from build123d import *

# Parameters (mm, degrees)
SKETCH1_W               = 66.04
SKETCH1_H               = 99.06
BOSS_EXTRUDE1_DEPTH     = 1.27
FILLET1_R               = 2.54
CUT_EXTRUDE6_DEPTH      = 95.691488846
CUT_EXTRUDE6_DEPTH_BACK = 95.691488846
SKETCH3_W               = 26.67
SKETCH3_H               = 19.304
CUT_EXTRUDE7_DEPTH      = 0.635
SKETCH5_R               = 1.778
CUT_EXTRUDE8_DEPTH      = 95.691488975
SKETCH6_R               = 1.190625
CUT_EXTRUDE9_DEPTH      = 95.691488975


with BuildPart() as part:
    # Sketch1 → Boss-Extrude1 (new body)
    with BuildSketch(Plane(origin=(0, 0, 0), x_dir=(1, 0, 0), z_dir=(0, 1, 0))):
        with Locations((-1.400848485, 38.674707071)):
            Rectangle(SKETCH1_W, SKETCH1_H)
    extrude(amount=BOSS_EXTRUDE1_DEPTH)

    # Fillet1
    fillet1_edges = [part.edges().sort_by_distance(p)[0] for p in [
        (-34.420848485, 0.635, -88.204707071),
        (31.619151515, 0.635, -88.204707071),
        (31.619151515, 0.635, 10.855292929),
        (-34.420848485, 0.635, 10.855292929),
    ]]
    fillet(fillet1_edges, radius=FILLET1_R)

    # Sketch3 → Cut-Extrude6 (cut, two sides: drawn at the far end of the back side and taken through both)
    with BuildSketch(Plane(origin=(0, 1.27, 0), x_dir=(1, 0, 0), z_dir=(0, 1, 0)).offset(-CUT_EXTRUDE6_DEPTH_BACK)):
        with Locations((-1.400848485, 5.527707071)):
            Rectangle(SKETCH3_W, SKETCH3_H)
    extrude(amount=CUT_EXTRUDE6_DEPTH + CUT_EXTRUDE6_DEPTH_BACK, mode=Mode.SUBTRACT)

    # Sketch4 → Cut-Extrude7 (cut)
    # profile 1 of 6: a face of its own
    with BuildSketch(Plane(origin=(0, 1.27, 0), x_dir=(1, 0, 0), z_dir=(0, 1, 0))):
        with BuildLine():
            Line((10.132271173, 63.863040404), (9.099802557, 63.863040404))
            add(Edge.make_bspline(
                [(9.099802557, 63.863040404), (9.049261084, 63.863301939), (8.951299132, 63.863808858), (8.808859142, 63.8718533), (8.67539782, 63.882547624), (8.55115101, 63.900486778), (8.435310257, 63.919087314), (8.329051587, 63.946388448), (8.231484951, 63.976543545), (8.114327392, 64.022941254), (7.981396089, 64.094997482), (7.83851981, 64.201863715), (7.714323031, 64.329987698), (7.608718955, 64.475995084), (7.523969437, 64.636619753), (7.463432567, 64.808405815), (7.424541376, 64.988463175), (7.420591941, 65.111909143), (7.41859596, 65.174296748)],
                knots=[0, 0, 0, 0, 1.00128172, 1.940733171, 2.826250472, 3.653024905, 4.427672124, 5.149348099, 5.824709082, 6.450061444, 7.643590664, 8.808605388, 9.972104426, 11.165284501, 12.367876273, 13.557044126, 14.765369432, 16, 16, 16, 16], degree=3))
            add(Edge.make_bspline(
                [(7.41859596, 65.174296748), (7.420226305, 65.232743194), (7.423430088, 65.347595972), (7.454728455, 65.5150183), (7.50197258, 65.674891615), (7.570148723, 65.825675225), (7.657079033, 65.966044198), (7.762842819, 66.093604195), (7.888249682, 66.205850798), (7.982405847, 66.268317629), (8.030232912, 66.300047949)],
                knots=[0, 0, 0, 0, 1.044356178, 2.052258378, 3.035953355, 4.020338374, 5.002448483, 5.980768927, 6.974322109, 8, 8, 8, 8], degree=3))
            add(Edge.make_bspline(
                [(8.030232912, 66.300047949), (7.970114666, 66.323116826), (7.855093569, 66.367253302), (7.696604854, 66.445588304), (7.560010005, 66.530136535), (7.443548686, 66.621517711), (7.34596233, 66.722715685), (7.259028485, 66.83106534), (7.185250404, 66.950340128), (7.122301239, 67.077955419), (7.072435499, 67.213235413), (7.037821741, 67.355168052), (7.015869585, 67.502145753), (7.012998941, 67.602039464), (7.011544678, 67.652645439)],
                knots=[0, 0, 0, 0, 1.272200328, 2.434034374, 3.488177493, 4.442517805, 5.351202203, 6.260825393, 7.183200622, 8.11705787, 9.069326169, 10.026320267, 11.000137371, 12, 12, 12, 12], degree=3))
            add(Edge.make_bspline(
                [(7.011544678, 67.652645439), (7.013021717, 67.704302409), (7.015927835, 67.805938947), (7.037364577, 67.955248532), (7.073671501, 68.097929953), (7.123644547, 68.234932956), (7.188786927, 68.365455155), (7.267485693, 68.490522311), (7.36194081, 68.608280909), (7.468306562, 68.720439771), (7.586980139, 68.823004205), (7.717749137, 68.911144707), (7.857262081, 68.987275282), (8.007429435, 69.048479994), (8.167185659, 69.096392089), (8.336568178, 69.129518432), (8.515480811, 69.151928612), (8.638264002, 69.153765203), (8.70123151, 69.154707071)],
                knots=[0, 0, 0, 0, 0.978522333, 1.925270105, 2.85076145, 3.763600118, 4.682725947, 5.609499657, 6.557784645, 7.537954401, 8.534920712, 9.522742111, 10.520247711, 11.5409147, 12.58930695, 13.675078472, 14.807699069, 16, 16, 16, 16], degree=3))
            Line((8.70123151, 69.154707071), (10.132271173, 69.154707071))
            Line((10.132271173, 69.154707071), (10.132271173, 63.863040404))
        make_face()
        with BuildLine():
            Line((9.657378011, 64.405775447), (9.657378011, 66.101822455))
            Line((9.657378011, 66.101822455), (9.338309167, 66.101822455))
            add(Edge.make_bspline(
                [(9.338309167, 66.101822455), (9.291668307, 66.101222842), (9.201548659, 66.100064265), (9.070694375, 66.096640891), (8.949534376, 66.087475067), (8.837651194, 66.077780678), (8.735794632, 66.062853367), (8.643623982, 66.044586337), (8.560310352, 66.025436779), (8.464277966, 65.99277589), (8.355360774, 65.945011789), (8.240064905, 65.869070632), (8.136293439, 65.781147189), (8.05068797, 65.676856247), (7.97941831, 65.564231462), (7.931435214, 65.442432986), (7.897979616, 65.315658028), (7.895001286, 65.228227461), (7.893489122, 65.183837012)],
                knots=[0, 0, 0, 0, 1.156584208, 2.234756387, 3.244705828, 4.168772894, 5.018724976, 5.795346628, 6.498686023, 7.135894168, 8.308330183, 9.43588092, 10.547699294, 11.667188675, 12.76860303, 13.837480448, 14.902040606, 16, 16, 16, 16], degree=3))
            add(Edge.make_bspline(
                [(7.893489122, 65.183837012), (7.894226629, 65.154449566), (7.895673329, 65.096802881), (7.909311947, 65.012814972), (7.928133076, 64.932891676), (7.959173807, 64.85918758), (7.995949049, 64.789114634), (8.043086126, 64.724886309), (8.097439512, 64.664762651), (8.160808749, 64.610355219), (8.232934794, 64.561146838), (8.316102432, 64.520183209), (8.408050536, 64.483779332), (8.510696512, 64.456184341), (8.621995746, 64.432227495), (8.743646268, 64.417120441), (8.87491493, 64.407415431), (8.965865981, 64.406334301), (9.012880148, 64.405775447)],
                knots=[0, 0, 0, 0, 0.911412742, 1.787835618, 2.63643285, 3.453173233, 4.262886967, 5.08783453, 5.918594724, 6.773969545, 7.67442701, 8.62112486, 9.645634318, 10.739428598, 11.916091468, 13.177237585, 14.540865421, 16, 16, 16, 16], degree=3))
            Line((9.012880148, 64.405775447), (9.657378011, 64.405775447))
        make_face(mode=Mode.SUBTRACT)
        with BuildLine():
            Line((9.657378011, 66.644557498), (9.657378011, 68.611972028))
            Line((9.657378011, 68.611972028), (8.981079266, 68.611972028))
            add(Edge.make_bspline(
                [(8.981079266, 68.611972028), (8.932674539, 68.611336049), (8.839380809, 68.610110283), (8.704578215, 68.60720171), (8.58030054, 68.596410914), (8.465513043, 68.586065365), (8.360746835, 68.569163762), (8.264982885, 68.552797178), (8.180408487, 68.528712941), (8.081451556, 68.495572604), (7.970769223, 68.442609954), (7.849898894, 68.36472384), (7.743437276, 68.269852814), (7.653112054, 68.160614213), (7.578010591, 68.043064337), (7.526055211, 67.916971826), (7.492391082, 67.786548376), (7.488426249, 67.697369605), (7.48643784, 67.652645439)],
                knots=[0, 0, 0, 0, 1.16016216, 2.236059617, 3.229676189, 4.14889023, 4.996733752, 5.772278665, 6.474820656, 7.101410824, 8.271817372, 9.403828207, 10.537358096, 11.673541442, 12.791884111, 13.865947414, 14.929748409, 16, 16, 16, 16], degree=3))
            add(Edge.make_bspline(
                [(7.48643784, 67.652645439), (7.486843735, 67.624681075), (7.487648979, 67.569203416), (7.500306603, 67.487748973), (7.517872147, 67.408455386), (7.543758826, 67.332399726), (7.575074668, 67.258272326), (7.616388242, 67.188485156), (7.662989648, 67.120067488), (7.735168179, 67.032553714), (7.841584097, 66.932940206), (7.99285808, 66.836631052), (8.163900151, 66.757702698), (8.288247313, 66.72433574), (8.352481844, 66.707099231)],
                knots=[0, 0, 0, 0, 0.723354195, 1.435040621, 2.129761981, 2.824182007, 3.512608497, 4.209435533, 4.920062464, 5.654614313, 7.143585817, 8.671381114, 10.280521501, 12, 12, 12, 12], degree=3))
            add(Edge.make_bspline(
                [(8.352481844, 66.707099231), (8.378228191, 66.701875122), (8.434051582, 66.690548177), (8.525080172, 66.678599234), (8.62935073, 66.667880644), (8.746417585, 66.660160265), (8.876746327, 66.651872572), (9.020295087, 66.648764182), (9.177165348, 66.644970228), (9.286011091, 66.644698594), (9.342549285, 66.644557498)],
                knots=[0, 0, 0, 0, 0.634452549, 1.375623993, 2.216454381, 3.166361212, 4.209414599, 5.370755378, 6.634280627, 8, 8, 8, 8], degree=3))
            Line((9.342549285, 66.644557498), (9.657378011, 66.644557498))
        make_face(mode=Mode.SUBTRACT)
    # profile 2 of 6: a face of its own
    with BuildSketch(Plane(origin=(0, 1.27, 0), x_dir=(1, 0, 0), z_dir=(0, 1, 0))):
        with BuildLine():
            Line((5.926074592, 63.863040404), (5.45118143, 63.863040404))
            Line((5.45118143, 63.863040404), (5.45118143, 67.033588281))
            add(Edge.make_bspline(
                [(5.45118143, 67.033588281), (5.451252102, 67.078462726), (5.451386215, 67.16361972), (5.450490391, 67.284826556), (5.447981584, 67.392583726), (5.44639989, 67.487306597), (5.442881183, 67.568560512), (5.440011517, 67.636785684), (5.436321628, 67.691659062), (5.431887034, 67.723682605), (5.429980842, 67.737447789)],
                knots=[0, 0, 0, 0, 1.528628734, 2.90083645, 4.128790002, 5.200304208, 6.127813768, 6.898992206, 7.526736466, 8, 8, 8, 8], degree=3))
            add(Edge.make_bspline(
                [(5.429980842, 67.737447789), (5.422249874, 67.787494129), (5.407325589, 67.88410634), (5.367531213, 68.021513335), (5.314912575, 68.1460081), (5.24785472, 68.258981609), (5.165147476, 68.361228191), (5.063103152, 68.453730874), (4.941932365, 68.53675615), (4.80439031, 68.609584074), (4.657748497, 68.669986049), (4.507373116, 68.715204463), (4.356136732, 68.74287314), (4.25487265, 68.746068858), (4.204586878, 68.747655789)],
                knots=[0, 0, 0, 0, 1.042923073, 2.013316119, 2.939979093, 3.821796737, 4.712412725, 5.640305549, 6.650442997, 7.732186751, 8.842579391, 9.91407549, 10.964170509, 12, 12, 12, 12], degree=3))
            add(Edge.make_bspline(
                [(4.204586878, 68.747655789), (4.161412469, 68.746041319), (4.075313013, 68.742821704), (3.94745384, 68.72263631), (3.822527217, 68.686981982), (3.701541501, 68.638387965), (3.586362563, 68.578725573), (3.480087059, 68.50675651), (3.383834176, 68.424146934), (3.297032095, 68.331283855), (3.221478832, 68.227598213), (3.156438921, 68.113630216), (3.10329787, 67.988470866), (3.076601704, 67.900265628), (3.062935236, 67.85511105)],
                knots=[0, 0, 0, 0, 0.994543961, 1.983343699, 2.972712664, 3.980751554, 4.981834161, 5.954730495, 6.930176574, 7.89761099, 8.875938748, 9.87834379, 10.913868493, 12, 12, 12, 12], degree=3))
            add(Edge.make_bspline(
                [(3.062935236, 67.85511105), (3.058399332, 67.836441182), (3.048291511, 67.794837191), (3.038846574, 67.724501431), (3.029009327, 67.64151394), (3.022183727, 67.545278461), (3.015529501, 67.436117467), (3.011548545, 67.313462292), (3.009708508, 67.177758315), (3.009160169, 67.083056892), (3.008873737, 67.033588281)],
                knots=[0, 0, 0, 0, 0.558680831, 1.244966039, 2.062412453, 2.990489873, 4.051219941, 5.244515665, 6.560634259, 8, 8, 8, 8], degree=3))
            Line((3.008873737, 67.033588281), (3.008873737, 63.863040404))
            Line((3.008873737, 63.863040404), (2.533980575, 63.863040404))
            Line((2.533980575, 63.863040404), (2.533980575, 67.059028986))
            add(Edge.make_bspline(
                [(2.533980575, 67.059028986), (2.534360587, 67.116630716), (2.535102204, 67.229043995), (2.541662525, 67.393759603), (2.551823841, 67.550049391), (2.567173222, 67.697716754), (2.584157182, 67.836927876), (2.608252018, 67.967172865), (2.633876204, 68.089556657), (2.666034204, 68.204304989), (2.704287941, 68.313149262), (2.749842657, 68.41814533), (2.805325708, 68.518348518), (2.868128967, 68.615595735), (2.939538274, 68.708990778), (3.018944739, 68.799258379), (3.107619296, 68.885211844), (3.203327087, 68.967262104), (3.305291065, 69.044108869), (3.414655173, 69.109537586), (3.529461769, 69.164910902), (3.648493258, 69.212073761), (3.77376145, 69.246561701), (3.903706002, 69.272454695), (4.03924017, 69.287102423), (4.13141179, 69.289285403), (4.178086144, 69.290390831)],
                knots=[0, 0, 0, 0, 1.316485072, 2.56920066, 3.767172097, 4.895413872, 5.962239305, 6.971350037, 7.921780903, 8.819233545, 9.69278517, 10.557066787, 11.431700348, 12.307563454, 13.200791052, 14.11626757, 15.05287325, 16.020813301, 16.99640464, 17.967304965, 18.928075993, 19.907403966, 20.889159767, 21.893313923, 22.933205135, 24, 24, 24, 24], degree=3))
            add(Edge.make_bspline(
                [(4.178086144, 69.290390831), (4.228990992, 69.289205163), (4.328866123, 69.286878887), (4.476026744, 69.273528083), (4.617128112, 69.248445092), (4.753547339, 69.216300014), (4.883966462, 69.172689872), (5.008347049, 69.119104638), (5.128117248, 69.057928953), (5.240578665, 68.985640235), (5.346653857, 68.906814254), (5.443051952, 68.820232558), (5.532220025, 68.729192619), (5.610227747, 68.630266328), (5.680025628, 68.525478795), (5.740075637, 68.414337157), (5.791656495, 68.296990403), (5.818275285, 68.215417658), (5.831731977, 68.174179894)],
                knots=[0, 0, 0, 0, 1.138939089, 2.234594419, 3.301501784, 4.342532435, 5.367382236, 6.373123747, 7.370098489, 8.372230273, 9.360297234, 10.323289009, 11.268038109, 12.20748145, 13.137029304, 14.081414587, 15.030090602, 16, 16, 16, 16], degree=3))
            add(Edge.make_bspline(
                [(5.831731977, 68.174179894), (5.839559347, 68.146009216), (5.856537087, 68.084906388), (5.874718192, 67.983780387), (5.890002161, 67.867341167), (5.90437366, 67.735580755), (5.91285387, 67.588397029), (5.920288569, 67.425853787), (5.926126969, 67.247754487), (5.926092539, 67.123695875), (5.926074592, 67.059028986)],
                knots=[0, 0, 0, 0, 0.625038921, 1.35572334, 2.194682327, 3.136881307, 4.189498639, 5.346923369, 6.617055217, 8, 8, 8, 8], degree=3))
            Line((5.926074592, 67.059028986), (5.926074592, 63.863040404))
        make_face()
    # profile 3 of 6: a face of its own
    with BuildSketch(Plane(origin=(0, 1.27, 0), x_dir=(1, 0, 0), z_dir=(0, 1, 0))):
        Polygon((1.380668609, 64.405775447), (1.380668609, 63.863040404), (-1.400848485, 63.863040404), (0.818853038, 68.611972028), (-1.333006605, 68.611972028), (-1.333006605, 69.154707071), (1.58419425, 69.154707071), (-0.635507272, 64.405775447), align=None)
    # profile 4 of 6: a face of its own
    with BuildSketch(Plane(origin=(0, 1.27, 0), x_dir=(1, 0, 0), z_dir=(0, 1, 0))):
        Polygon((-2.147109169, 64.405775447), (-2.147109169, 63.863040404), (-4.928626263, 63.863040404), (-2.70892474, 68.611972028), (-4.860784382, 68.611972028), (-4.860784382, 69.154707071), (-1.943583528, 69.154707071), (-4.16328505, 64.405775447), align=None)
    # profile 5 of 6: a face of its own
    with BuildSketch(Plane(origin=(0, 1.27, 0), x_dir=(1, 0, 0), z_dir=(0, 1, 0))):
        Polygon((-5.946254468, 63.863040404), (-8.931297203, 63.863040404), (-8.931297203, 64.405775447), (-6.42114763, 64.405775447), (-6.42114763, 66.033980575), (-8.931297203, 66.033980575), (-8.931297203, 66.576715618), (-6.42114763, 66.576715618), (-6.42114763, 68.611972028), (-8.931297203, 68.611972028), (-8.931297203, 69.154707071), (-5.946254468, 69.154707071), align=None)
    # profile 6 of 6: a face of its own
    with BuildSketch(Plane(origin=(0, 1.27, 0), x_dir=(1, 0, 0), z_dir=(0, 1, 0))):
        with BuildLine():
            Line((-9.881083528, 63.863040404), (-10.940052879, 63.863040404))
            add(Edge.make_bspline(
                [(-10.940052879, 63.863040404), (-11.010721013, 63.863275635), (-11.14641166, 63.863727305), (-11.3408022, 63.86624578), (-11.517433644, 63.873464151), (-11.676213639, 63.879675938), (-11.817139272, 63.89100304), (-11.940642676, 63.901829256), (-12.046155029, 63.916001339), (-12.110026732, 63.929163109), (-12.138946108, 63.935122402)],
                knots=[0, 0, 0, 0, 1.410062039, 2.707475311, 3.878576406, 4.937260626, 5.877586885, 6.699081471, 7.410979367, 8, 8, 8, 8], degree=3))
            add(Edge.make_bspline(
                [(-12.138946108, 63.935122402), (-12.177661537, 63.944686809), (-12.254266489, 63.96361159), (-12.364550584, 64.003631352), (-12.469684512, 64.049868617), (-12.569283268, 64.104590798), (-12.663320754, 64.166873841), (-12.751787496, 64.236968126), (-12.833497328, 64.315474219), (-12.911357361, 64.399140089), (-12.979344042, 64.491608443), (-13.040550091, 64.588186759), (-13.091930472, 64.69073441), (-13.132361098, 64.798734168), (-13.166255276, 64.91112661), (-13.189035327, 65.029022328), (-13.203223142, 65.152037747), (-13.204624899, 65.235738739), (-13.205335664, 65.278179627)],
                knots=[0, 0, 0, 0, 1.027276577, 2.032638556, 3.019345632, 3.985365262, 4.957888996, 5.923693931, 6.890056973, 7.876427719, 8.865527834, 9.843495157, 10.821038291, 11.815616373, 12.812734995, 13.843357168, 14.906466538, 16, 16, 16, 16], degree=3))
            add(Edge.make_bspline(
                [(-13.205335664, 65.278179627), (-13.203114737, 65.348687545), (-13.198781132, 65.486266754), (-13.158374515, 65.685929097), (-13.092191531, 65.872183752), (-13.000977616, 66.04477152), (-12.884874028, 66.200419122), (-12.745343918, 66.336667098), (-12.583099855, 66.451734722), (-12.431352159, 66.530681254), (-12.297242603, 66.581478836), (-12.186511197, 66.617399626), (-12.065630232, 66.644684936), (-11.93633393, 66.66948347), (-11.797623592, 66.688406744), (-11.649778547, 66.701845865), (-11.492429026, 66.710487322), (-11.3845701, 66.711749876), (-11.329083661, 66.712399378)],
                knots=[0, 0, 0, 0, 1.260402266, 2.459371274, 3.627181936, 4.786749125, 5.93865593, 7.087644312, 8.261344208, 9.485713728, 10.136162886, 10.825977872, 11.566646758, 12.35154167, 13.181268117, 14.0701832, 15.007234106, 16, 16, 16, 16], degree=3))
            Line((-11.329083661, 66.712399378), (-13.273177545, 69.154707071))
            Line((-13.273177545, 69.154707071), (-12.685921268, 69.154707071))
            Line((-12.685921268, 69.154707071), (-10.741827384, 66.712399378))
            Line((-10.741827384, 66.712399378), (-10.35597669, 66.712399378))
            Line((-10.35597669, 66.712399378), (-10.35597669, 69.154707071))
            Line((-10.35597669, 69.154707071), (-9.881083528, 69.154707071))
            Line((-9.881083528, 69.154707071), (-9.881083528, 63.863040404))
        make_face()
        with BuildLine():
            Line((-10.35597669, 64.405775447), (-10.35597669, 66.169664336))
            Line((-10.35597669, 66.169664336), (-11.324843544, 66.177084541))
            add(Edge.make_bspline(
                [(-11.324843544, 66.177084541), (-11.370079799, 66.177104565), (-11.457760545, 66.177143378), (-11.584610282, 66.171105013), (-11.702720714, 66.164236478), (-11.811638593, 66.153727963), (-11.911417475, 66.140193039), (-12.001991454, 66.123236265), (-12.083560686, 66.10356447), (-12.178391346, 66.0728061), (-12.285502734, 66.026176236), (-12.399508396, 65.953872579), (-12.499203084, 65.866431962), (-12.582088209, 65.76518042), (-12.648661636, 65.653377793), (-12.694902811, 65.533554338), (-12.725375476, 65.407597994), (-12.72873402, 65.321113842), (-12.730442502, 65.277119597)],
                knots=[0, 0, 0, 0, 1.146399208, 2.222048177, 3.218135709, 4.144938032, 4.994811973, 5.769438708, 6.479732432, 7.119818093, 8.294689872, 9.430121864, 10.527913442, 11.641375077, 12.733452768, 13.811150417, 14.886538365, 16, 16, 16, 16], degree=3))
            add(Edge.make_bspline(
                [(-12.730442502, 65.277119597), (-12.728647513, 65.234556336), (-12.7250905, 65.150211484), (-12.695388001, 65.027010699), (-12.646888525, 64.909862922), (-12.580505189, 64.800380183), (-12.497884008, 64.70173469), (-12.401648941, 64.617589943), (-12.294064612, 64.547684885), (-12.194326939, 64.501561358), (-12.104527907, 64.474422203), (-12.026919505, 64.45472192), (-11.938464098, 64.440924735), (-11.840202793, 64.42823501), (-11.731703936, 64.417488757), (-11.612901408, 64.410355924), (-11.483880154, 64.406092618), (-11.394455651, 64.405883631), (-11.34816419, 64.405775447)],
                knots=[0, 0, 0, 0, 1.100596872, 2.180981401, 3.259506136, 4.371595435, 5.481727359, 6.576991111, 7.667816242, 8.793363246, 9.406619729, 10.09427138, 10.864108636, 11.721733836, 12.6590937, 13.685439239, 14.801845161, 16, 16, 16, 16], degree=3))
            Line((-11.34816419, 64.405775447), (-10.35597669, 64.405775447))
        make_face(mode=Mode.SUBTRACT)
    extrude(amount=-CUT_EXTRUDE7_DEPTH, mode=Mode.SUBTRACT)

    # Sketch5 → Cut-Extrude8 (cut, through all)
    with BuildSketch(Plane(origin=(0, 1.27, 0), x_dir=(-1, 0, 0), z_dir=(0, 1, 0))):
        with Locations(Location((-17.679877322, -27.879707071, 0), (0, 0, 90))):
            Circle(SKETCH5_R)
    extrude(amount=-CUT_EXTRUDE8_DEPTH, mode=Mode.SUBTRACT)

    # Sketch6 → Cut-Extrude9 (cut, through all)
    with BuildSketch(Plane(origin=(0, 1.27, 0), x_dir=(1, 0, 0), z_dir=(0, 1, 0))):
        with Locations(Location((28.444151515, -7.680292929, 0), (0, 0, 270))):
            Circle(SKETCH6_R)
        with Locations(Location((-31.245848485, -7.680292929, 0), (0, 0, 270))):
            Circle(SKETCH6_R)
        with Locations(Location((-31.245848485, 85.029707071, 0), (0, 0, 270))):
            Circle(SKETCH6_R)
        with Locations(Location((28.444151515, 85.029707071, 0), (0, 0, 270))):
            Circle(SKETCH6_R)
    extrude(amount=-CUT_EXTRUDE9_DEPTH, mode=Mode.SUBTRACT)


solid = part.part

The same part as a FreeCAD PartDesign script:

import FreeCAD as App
import Part
import Sketcher

V = App.Vector
Q = App.Units.Quantity


def edges_at(feature, points):
    """Names of the edges that pass closest to the given points."""
    edges = feature.Shape.Edges
    near = lambda p: min(range(len(edges)), key=lambda i: edges[i].distToShape(Part.Vertex(*p))[0])
    return sorted({f"Edge{near(p) + 1}" for p in points})


def add_polygon(sketch, points):
    """Adds a closed chain of lines whose ends are joined by coincident constraints."""
    first, n = sketch.GeometryCount, len(points)
    for a, b in zip(points, points[1:] + points[:1]):
        sketch.addGeometry(Part.LineSegment(App.Vector(*a, 0), App.Vector(*b, 0)), False)
    for i in range(n):
        sketch.addConstraint(Sketcher.Constraint("Coincident", first + i, 2, first + (i + 1) % n, 1))

doc = App.newDocument("Part")
body = doc.addObject("PartDesign::Body", "Body")

# Sketch on XZ plane
sketch1 = body.newObject("Sketcher::SketchObject", "Sketch")
sketch1.AttachmentSupport = (doc.getObject("XZ_Plane"), [""])
sketch1.MapMode = "FlatFace"
add_polygon(sketch1, [(-34, -88), (-34, 11), (32, 11), (32, -88)])  # lines 0-3
sketch1.addConstraint([
    Sketcher.Constraint("Vertical", 0),
    Sketcher.Constraint("Horizontal", 1),
    Sketcher.Constraint("Vertical", 2),
    Sketcher.Constraint("Horizontal", 3),
    Sketcher.Constraint("DistanceX", 1, 1, 1, 2, Q("2.6 in")),
    Sketcher.Constraint("DistanceY", 0, 1, 0, 2, Q("3.9 in")),
    Sketcher.Constraint("DistanceX", 0, 2, -1, 1, Q("34.420848 mm")),
    Sketcher.Constraint("DistanceY", -1, 1, 0, 2, Q("10.855293 mm")),
])
pad1 = body.newObject("PartDesign::Pad", "Pad")
pad1.Profile = sketch1
pad1.Length = Q("0.05 in")
pad1.Reversed = True
doc.recompute()

fillet = body.newObject("PartDesign::Fillet", "Fillet")
fillet.Base = (pad1, edges_at(pad1, [
    (-34.421, 0.635, -88.205),
    (31.619, 0.635, -88.205),
    (31.619, 0.635, 10.855),
    (-34.421, 0.635, 10.855),
]))
fillet.Radius = Q("0.1 in")

# Sketch on XZ plane
sketch2 = body.newObject("Sketcher::SketchObject", "Sketch001")
sketch2.AttachmentSupport = (doc.getObject("XZ_Plane"), [""])
sketch2.MapMode = "FlatFace"
sketch2.AttachmentOffset = App.Placement(V(0, 0, -0.05 * 25.4), App.Rotation())
add_polygon(sketch2, [(-15, -15), (-15, 4), (12, 4), (12, -15)])  # lines 0-3
sketch2.addConstraint([
    Sketcher.Constraint("Vertical", 0),
    Sketcher.Constraint("Horizontal", 1),
    Sketcher.Constraint("Vertical", 2),
    Sketcher.Constraint("Horizontal", 3),
    Sketcher.Constraint("DistanceX", 1, 1, 1, 2, Q("1.05 in")),
    Sketcher.Constraint("DistanceY", 0, 1, 0, 2, Q("0.76 in")),
    Sketcher.Constraint("DistanceX", 0, 2, -1, 1, Q("14.735848 mm")),
    Sketcher.Constraint("DistanceY", -1, 1, 0, 2, Q("4.124293 mm")),
])
pocket1 = body.newObject("PartDesign::Pocket", "Pocket")
pocket1.Profile = sketch2
pocket1.Type = "ThroughAll"
pocket1.Midplane = True

# Sketch on XZ plane
sketch3 = body.newObject("Sketcher::SketchObject", "Sketch002")
sketch3.AttachmentSupport = (doc.getObject("XZ_Plane"), [""])
sketch3.MapMode = "FlatFace"
sketch3.AttachmentOffset = App.Placement(V(0, 0, -0.05 * 25.4), App.Rotation())
sketch3.addGeometry(Part.LineSegment(V(9.099803, -63.86304, 0), V(10.132271, -63.86304, 0)), False)  # 0
sketch3.addGeometry(Part.LineSegment(V(10.132271, -63.86304, 0), V(10.132271, -69.154707, 0)), False)  # 1
sketch3.addGeometry(Part.LineSegment(V(10.132271, -69.154707, 0), V(8.701232, -69.154707, 0)), False)  # 2
sketch3.addGeometry(Part.BSplineCurve([V(7.011545, -67.652645, 0), V(7.013022, -67.704302, 0), V(7.015928, -67.805939, 0), V(7.037365, -67.955249, 0), V(7.073672, -68.09793, 0), V(7.123645, -68.234933, 0), V(7.188787, -68.365455, 0), V(7.267486, -68.490522, 0), V(7.361941, -68.608281, 0), V(7.468307, -68.72044, 0), V(7.58698, -68.823004, 0), V(7.717749, -68.911145, 0), V(7.857262, -68.987275, 0), V(8.007429, -69.04848, 0), V(8.167186, -69.096392, 0), V(8.336568, -69.129518, 0), V(8.515481, -69.151929, 0), V(8.638264, -69.153765, 0), V(8.701232, -69.154707, 0)], [4, 1, 1, 1, 1, 1, 1, 1, 1, 1, 1, 1, 1, 1, 1, 1, 4], [0, 0.978522333, 1.925270105, 2.85076145, 3.763600118, 4.682725947, 5.609499657, 6.557784645, 7.537954401, 8.534920712, 9.522742111, 10.520247711, 11.5409147, 12.58930695, 13.675078472, 14.807699069, 16], False, 3, [1, 1, 1, 1, 1, 1, 1, 1, 1, 1, 1, 1, 1, 1, 1, 1, 1, 1, 1], False), False)  # 3
sketch3.addGeometry(Part.BSplineCurve([V(8.030233, -66.300048, 0), V(7.970115, -66.323117, 0), V(7.855094, -66.367253, 0), V(7.696605, -66.445588, 0), V(7.56001, -66.530137, 0), V(7.443549, -66.621518, 0), V(7.345962, -66.722716, 0), V(7.259028, -66.831065, 0), V(7.18525, -66.95034, 0), V(7.122301, -67.077955, 0), V(7.072435, -67.213235, 0), V(7.037822, -67.355168, 0), V(7.01587, -67.502146, 0), V(7.012999, -67.602039, 0), V(7.011545, -67.652645, 0)], [4, 1, 1, 1, 1, 1, 1, 1, 1, 1, 1, 1, 4], [0, 1.272200328, 2.434034374, 3.488177493, 4.442517805, 5.351202203, 6.260825393, 7.183200622, 8.11705787, 9.069326169, 10.026320267, 11.000137371, 12], False, 3, [1, 1, 1, 1, 1, 1, 1, 1, 1, 1, 1, 1, 1, 1, 1], False), False)  # 4
sketch3.addGeometry(Part.BSplineCurve([V(7.418596, -65.174297, 0), V(7.420226, -65.232743, 0), V(7.42343, -65.347596, 0), V(7.454728, -65.515018, 0), V(7.501973, -65.674892, 0), V(7.570149, -65.825675, 0), V(7.657079, -65.966044, 0), V(7.762843, -66.093604, 0), V(7.88825, -66.205851, 0), V(7.982406, -66.268318, 0), V(8.030233, -66.300048, 0)], [4, 1, 1, 1, 1, 1, 1, 1, 4], [0, 1.044356178, 2.052258378, 3.035953355, 4.020338374, 5.002448483, 5.980768927, 6.974322109, 8], False, 3, [1, 1, 1, 1, 1, 1, 1, 1, 1, 1, 1], False), False)  # 5
sketch3.addGeometry(Part.BSplineCurve([V(9.099803, -63.86304, 0), V(9.049261, -63.863302, 0), V(8.951299, -63.863809, 0), V(8.808859, -63.871853, 0), V(8.675398, -63.882548, 0), V(8.551151, -63.900487, 0), V(8.43531, -63.919087, 0), V(8.329052, -63.946388, 0), V(8.231485, -63.976544, 0), V(8.114327, -64.022941, 0), V(7.981396, -64.094997, 0), V(7.83852, -64.201864, 0), V(7.714323, -64.329988, 0), V(7.608719, -64.475995, 0), V(7.523969, -64.63662, 0), V(7.463433, -64.808406, 0), V(7.424541, -64.988463, 0), V(7.420592, -65.111909, 0), V(7.418596, -65.174297, 0)], [4, 1, 1, 1, 1, 1, 1, 1, 1, 1, 1, 1, 1, 1, 1, 1, 4], [0, 1.00128172, 1.940733171, 2.826250472, 3.653024905, 4.427672124, 5.149348099, 5.824709082, 6.450061444, 7.643590664, 8.808605388, 9.972104426, 11.165284501, 12.367876273, 13.557044126, 14.765369432, 16], False, 3, [1, 1, 1, 1, 1, 1, 1, 1, 1, 1, 1, 1, 1, 1, 1, 1, 1, 1, 1], False), False)  # 6
sketch3.addGeometry(Part.LineSegment(V(9.657378, -64.405775, 0), V(9.01288, -64.405775, 0)), False)  # 7
sketch3.addGeometry(Part.BSplineCurve([V(7.893489, -65.183837, 0), V(7.894227, -65.15445, 0), V(7.895673, -65.096803, 0), V(7.909312, -65.012815, 0), V(7.928133, -64.932892, 0), V(7.959174, -64.859188, 0), V(7.995949, -64.789115, 0), V(8.043086, -64.724886, 0), V(8.09744, -64.664763, 0), V(8.160809, -64.610355, 0), V(8.232935, -64.561147, 0), V(8.316102, -64.520183, 0), V(8.408051, -64.483779, 0), V(8.510697, -64.456184, 0), V(8.621996, -64.432227, 0), V(8.743646, -64.41712, 0), V(8.874915, -64.407415, 0), V(8.965866, -64.406334, 0), V(9.01288, -64.405775, 0)], [4, 1, 1, 1, 1, 1, 1, 1, 1, 1, 1, 1, 1, 1, 1, 1, 4], [0, 0.911412742, 1.787835618, 2.63643285, 3.453173233, 4.262886967, 5.08783453, 5.918594724, 6.773969545, 7.67442701, 8.62112486, 9.645634318, 10.739428598, 11.916091468, 13.177237585, 14.540865421, 16], False, 3, [1, 1, 1, 1, 1, 1, 1, 1, 1, 1, 1, 1, 1, 1, 1, 1, 1, 1, 1], False), False)  # 8
sketch3.addGeometry(Part.BSplineCurve([V(9.338309, -66.101822, 0), V(9.291668, -66.101223, 0), V(9.201549, -66.100064, 0), V(9.070694, -66.096641, 0), V(8.949534, -66.087475, 0), V(8.837651, -66.077781, 0), V(8.735795, -66.062853, 0), V(8.643624, -66.044586, 0), V(8.56031, -66.025437, 0), V(8.464278, -65.992776, 0), V(8.355361, -65.945012, 0), V(8.240065, -65.869071, 0), V(8.136293, -65.781147, 0), V(8.050688, -65.676856, 0), V(7.979418, -65.564231, 0), V(7.931435, -65.442433, 0), V(7.89798, -65.315658, 0), V(7.895001, -65.228227, 0), V(7.893489, -65.183837, 0)], [4, 1, 1, 1, 1, 1, 1, 1, 1, 1, 1, 1, 1, 1, 1, 1, 4], [0, 1.156584208, 2.234756387, 3.244705828, 4.168772894, 5.018724976, 5.795346628, 6.498686023, 7.135894168, 8.308330183, 9.43588092, 10.547699294, 11.667188675, 12.76860303, 13.837480448, 14.902040606, 16], False, 3, [1, 1, 1, 1, 1, 1, 1, 1, 1, 1, 1, 1, 1, 1, 1, 1, 1, 1, 1], False), False)  # 9
sketch3.addGeometry(Part.LineSegment(V(9.338309, -66.101822, 0), V(9.657378, -66.101822, 0)), False)  # 10
sketch3.addGeometry(Part.LineSegment(V(9.657378, -66.101822, 0), V(9.657378, -64.405775, 0)), False)  # 11
sketch3.addGeometry(Part.LineSegment(V(9.657378, -66.644557, 0), V(9.342549, -66.644557, 0)), False)  # 12
sketch3.addGeometry(Part.BSplineCurve([V(8.352482, -66.707099, 0), V(8.378228, -66.701875, 0), V(8.434052, -66.690548, 0), V(8.52508, -66.678599, 0), V(8.629351, -66.667881, 0), V(8.746418, -66.66016, 0), V(8.876746, -66.651873, 0), V(9.020295, -66.648764, 0), V(9.177165, -66.64497, 0), V(9.286011, -66.644699, 0), V(9.342549, -66.644557, 0)], [4, 1, 1, 1, 1, 1, 1, 1, 4], [0, 0.634452549, 1.375623993, 2.216454381, 3.166361212, 4.209414599, 5.370755378, 6.634280627, 8], False, 3, [1, 1, 1, 1, 1, 1, 1, 1, 1, 1, 1], False), False)  # 13
sketch3.addGeometry(Part.BSplineCurve([V(7.486438, -67.652645, 0), V(7.486844, -67.624681, 0), V(7.487649, -67.569203, 0), V(7.500307, -67.487749, 0), V(7.517872, -67.408455, 0), V(7.543759, -67.3324, 0), V(7.575075, -67.258272, 0), V(7.616388, -67.188485, 0), V(7.66299, -67.120067, 0), V(7.735168, -67.032554, 0), V(7.841584, -66.93294, 0), V(7.992858, -66.836631, 0), V(8.1639, -66.757703, 0), V(8.288247, -66.724336, 0), V(8.352482, -66.707099, 0)], [4, 1, 1, 1, 1, 1, 1, 1, 1, 1, 1, 1, 4], [0, 0.723354195, 1.435040621, 2.129761981, 2.824182007, 3.512608497, 4.209435533, 4.920062464, 5.654614313, 7.143585817, 8.671381114, 10.280521501, 12], False, 3, [1, 1, 1, 1, 1, 1, 1, 1, 1, 1, 1, 1, 1, 1, 1], False), False)  # 14
sketch3.addGeometry(Part.BSplineCurve([V(8.981079, -68.611972, 0), V(8.932675, -68.611336, 0), V(8.839381, -68.61011, 0), V(8.704578, -68.607202, 0), V(8.580301, -68.596411, 0), V(8.465513, -68.586065, 0), V(8.360747, -68.569164, 0), V(8.264983, -68.552797, 0), V(8.180408, -68.528713, 0), V(8.081452, -68.495573, 0), V(7.970769, -68.44261, 0), V(7.849899, -68.364724, 0), V(7.743437, -68.269853, 0), V(7.653112, -68.160614, 0), V(7.578011, -68.043064, 0), V(7.526055, -67.916972, 0), V(7.492391, -67.786548, 0), V(7.488426, -67.69737, 0), V(7.486438, -67.652645, 0)], [4, 1, 1, 1, 1, 1, 1, 1, 1, 1, 1, 1, 1, 1, 1, 1, 4], [0, 1.16016216, 2.236059617, 3.229676189, 4.14889023, 4.996733752, 5.772278665, 6.474820656, 7.101410824, 8.271817372, 9.403828207, 10.537358096, 11.673541442, 12.791884111, 13.865947414, 14.929748409, 16], False, 3, [1, 1, 1, 1, 1, 1, 1, 1, 1, 1, 1, 1, 1, 1, 1, 1, 1, 1, 1], False), False)  # 15
sketch3.addGeometry(Part.LineSegment(V(8.981079, -68.611972, 0), V(9.657378, -68.611972, 0)), False)  # 16
sketch3.addGeometry(Part.LineSegment(V(9.657378, -68.611972, 0), V(9.657378, -66.644557, 0)), False)  # 17
sketch3.addGeometry(Part.LineSegment(V(5.451181, -63.86304, 0), V(5.926075, -63.86304, 0)), False)  # 18
sketch3.addGeometry(Part.LineSegment(V(5.926075, -63.86304, 0), V(5.926075, -67.059029, 0)), False)  # 19
sketch3.addGeometry(Part.BSplineCurve([V(5.831732, -68.17418, 0), V(5.839559, -68.146009, 0), V(5.856537, -68.084906, 0), V(5.874718, -67.98378, 0), V(5.890002, -67.867341, 0), V(5.904374, -67.735581, 0), V(5.912854, -67.588397, 0), V(5.920289, -67.425854, 0), V(5.926127, -67.247754, 0), V(5.926093, -67.123696, 0), V(5.926075, -67.059029, 0)], [4, 1, 1, 1, 1, 1, 1, 1, 4], [0, 0.625038921, 1.35572334, 2.194682327, 3.136881307, 4.189498639, 5.346923369, 6.617055217, 8], False, 3, [1, 1, 1, 1, 1, 1, 1, 1, 1, 1, 1], False), False)  # 20
sketch3.addGeometry(Part.BSplineCurve([V(4.178086, -69.290391, 0), V(4.228991, -69.289205, 0), V(4.328866, -69.286879, 0), V(4.476027, -69.273528, 0), V(4.617128, -69.248445, 0), V(4.753547, -69.2163, 0), V(4.883966, -69.17269, 0), V(5.008347, -69.119105, 0), V(5.128117, -69.057929, 0), V(5.240579, -68.98564, 0), V(5.346654, -68.906814, 0), V(5.443052, -68.820233, 0), V(5.53222, -68.729193, 0), V(5.610228, -68.630266, 0), V(5.680026, -68.525479, 0), V(5.740076, -68.414337, 0), V(5.791656, -68.29699, 0), V(5.818275, -68.215418, 0), V(5.831732, -68.17418, 0)], [4, 1, 1, 1, 1, 1, 1, 1, 1, 1, 1, 1, 1, 1, 1, 1, 4], [0, 1.138939089, 2.234594419, 3.301501784, 4.342532435, 5.367382236, 6.373123747, 7.370098489, 8.372230273, 9.360297234, 10.323289009, 11.268038109, 12.20748145, 13.137029304, 14.081414587, 15.030090602, 16], False, 3, [1, 1, 1, 1, 1, 1, 1, 1, 1, 1, 1, 1, 1, 1, 1, 1, 1, 1, 1], False), False)  # 21
sketch3.addGeometry(Part.BSplineCurve([V(2.533981, -67.059029, 0), V(2.534361, -67.116631, 0), V(2.535102, -67.229044, 0), V(2.541663, -67.39376, 0), V(2.551824, -67.550049, 0), V(2.567173, -67.697717, 0), V(2.584157, -67.836928, 0), V(2.608252, -67.967173, 0), V(2.633876, -68.089557, 0), V(2.666034, -68.204305, 0), V(2.704288, -68.313149, 0), V(2.749843, -68.418145, 0), V(2.805326, -68.518349, 0), V(2.868129, -68.615596, 0), V(2.939538, -68.708991, 0), V(3.018945, -68.799258, 0), V(3.107619, -68.885212, 0), V(3.203327, -68.967262, 0), V(3.305291, -69.044109, 0), V(3.414655, -69.109538, 0), V(3.529462, -69.164911, 0), V(3.648493, -69.212074, 0), V(3.773761, -69.246562, 0), V(3.903706, -69.272455, 0), V(4.03924, -69.287102, 0), V(4.131412, -69.289285, 0), V(4.178086, -69.290391, 0)], [4, 1, 1, 1, 1, 1, 1, 1, 1, 1, 1, 1, 1, 1, 1, 1, 1, 1, 1, 1, 1, 1, 1, 1, 4], [0, 1.316485072, 2.56920066, 3.767172097, 4.895413872, 5.962239305, 6.971350037, 7.921780903, 8.819233545, 9.69278517, 10.557066787, 11.431700348, 12.307563454, 13.200791052, 14.11626757, 15.05287325, 16.020813301, 16.99640464, 17.967304965, 18.928075993, 19.907403966, 20.889159767, 21.893313923, 22.933205135, 24], False, 3, [1, 1, 1, 1, 1, 1, 1, 1, 1, 1, 1, 1, 1, 1, 1, 1, 1, 1, 1, 1, 1, 1, 1, 1, 1, 1, 1], False), False)  # 22
sketch3.addGeometry(Part.LineSegment(V(2.533981, -67.059029, 0), V(2.533981, -63.86304, 0)), False)  # 23
sketch3.addGeometry(Part.LineSegment(V(2.533981, -63.86304, 0), V(3.008874, -63.86304, 0)), False)  # 24
sketch3.addGeometry(Part.LineSegment(V(3.008874, -63.86304, 0), V(3.008874, -67.033588, 0)), False)  # 25
sketch3.addGeometry(Part.BSplineCurve([V(3.062935, -67.855111, 0), V(3.058399, -67.836441, 0), V(3.048292, -67.794837, 0), V(3.038847, -67.724501, 0), V(3.029009, -67.641514, 0), V(3.022184, -67.545278, 0), V(3.01553, -67.436117, 0), V(3.011549, -67.313462, 0), V(3.009709, -67.177758, 0), V(3.00916, -67.083057, 0), V(3.008874, -67.033588, 0)], [4, 1, 1, 1, 1, 1, 1, 1, 4], [0, 0.558680831, 1.244966039, 2.062412453, 2.990489873, 4.051219941, 5.244515665, 6.560634259, 8], False, 3, [1, 1, 1, 1, 1, 1, 1, 1, 1, 1, 1], False), False)  # 26
sketch3.addGeometry(Part.BSplineCurve([V(4.204587, -68.747656, 0), V(4.161412, -68.746041, 0), V(4.075313, -68.742822, 0), V(3.947454, -68.722636, 0), V(3.822527, -68.686982, 0), V(3.701542, -68.638388, 0), V(3.586363, -68.578726, 0), V(3.480087, -68.506757, 0), V(3.383834, -68.424147, 0), V(3.297032, -68.331284, 0), V(3.221479, -68.227598, 0), V(3.156439, -68.11363, 0), V(3.103298, -67.988471, 0), V(3.076602, -67.900266, 0), V(3.062935, -67.855111, 0)], [4, 1, 1, 1, 1, 1, 1, 1, 1, 1, 1, 1, 4], [0, 0.994543961, 1.983343699, 2.972712664, 3.980751554, 4.981834161, 5.954730495, 6.930176574, 7.89761099, 8.875938748, 9.87834379, 10.913868493, 12], False, 3, [1, 1, 1, 1, 1, 1, 1, 1, 1, 1, 1, 1, 1, 1, 1], False), False)  # 27
sketch3.addGeometry(Part.BSplineCurve([V(5.429981, -67.737448, 0), V(5.42225, -67.787494, 0), V(5.407326, -67.884106, 0), V(5.367531, -68.021513, 0), V(5.314913, -68.146008, 0), V(5.247855, -68.258982, 0), V(5.165147, -68.361228, 0), V(5.063103, -68.453731, 0), V(4.941932, -68.536756, 0), V(4.80439, -68.609584, 0), V(4.657748, -68.669986, 0), V(4.507373, -68.715204, 0), V(4.356137, -68.742873, 0), V(4.254873, -68.746069, 0), V(4.204587, -68.747656, 0)], [4, 1, 1, 1, 1, 1, 1, 1, 1, 1, 1, 1, 4], [0, 1.042923073, 2.013316119, 2.939979093, 3.821796737, 4.712412725, 5.640305549, 6.650442997, 7.732186751, 8.842579391, 9.91407549, 10.964170509, 12], False, 3, [1, 1, 1, 1, 1, 1, 1, 1, 1, 1, 1, 1, 1, 1, 1], False), False)  # 28
sketch3.addGeometry(Part.BSplineCurve([V(5.451181, -67.033588, 0), V(5.451252, -67.078463, 0), V(5.451386, -67.16362, 0), V(5.45049, -67.284827, 0), V(5.447982, -67.392584, 0), V(5.4464, -67.487307, 0), V(5.442881, -67.568561, 0), V(5.440012, -67.636786, 0), V(5.436322, -67.691659, 0), V(5.431887, -67.723683, 0), V(5.429981, -67.737448, 0)], [4, 1, 1, 1, 1, 1, 1, 1, 4], [0, 1.528628734, 2.90083645, 4.128790002, 5.200304208, 6.127813768, 6.898992206, 7.526736466, 8], False, 3, [1, 1, 1, 1, 1, 1, 1, 1, 1, 1, 1], False), False)  # 29
sketch3.addGeometry(Part.LineSegment(V(5.451181, -67.033588, 0), V(5.451181, -63.86304, 0)), False)  # 30
add_polygon(sketch3, [(1.380669, -63.86304), (1.380669, -64.405775), (-0.635507, -64.405775), (1.584194, -69.154707), (-1.333007, -69.154707), (-1.333007, -68.611972), (0.818853, -68.611972), (-1.400848, -63.86304)])  # lines 31-38
add_polygon(sketch3, [(-2.147109, -63.86304), (-2.147109, -64.405775), (-4.163285, -64.405775), (-1.943584, -69.154707), (-4.860784, -69.154707), (-4.860784, -68.611972), (-2.708925, -68.611972), (-4.928626, -63.86304)])  # lines 39-46
add_polygon(sketch3, [(-8.931297, -63.86304), (-5.946254, -63.86304), (-5.946254, -69.154707), (-8.931297, -69.154707), (-8.931297, -68.611972), (-6.421148, -68.611972), (-6.421148, -66.576716), (-8.931297, -66.576716), (-8.931297, -66.033981), (-6.421148, -66.033981), (-6.421148, -64.405775), (-8.931297, -64.405775)])  # lines 47-58
sketch3.addGeometry(Part.LineSegment(V(-10.940053, -63.86304, 0), V(-9.881084, -63.86304, 0)), False)  # 59
sketch3.addGeometry(Part.LineSegment(V(-9.881084, -63.86304, 0), V(-9.881084, -69.154707, 0)), False)  # 60
sketch3.addGeometry(Part.LineSegment(V(-9.881084, -69.154707, 0), V(-10.355977, -69.154707, 0)), False)  # 61
sketch3.addGeometry(Part.LineSegment(V(-10.355977, -69.154707, 0), V(-10.355977, -66.712399, 0)), False)  # 62
sketch3.addGeometry(Part.LineSegment(V(-10.355977, -66.712399, 0), V(-10.741827, -66.712399, 0)), False)  # 63
sketch3.addGeometry(Part.LineSegment(V(-10.741827, -66.712399, 0), V(-12.685921, -69.154707, 0)), False)  # 64
sketch3.addGeometry(Part.LineSegment(V(-12.685921, -69.154707, 0), V(-13.273178, -69.154707, 0)), False)  # 65
sketch3.addGeometry(Part.LineSegment(V(-13.273178, -69.154707, 0), V(-11.329084, -66.712399, 0)), False)  # 66
sketch3.addGeometry(Part.BSplineCurve([V(-13.205336, -65.27818, 0), V(-13.203115, -65.348688, 0), V(-13.198781, -65.486267, 0), V(-13.158375, -65.685929, 0), V(-13.092192, -65.872184, 0), V(-13.000978, -66.044772, 0), V(-12.884874, -66.200419, 0), V(-12.745344, -66.336667, 0), V(-12.5831, -66.451735, 0), V(-12.431352, -66.530681, 0), V(-12.297243, -66.581479, 0), V(-12.186511, -66.6174, 0), V(-12.06563, -66.644685, 0), V(-11.936334, -66.669483, 0), V(-11.797624, -66.688407, 0), V(-11.649779, -66.701846, 0), V(-11.492429, -66.710487, 0), V(-11.38457, -66.71175, 0), V(-11.329084, -66.712399, 0)], [4, 1, 1, 1, 1, 1, 1, 1, 1, 1, 1, 1, 1, 1, 1, 1, 4], [0, 1.260402266, 2.459371274, 3.627181936, 4.786749125, 5.93865593, 7.087644312, 8.261344208, 9.485713728, 10.136162886, 10.825977872, 11.566646758, 12.35154167, 13.181268117, 14.0701832, 15.007234106, 16], False, 3, [1, 1, 1, 1, 1, 1, 1, 1, 1, 1, 1, 1, 1, 1, 1, 1, 1, 1, 1], False), False)  # 67
sketch3.addGeometry(Part.BSplineCurve([V(-12.138946, -63.935122, 0), V(-12.177662, -63.944687, 0), V(-12.254266, -63.963612, 0), V(-12.364551, -64.003631, 0), V(-12.469685, -64.049869, 0), V(-12.569283, -64.104591, 0), V(-12.663321, -64.166874, 0), V(-12.751787, -64.236968, 0), V(-12.833497, -64.315474, 0), V(-12.911357, -64.39914, 0), V(-12.979344, -64.491608, 0), V(-13.04055, -64.588187, 0), V(-13.09193, -64.690734, 0), V(-13.132361, -64.798734, 0), V(-13.166255, -64.911127, 0), V(-13.189035, -65.029022, 0), V(-13.203223, -65.152038, 0), V(-13.204625, -65.235739, 0), V(-13.205336, -65.27818, 0)], [4, 1, 1, 1, 1, 1, 1, 1, 1, 1, 1, 1, 1, 1, 1, 1, 4], [0, 1.027276577, 2.032638556, 3.019345632, 3.985365262, 4.957888996, 5.923693931, 6.890056973, 7.876427719, 8.865527834, 9.843495157, 10.821038291, 11.815616373, 12.812734995, 13.843357168, 14.906466538, 16], False, 3, [1, 1, 1, 1, 1, 1, 1, 1, 1, 1, 1, 1, 1, 1, 1, 1, 1, 1, 1], False), False)  # 68
sketch3.addGeometry(Part.BSplineCurve([V(-10.940053, -63.86304, 0), V(-11.010721, -63.863276, 0), V(-11.146412, -63.863727, 0), V(-11.340802, -63.866246, 0), V(-11.517434, -63.873464, 0), V(-11.676214, -63.879676, 0), V(-11.817139, -63.891003, 0), V(-11.940643, -63.901829, 0), V(-12.046155, -63.916001, 0), V(-12.110027, -63.929163, 0), V(-12.138946, -63.935122, 0)], [4, 1, 1, 1, 1, 1, 1, 1, 4], [0, 1.410062039, 2.707475311, 3.878576406, 4.937260626, 5.877586885, 6.699081471, 7.410979367, 8], False, 3, [1, 1, 1, 1, 1, 1, 1, 1, 1, 1, 1], False), False)  # 69
sketch3.addGeometry(Part.LineSegment(V(-10.355977, -64.405775, 0), V(-11.348164, -64.405775, 0)), False)  # 70
sketch3.addGeometry(Part.BSplineCurve([V(-12.730443, -65.27712, 0), V(-12.728648, -65.234556, 0), V(-12.725091, -65.150211, 0), V(-12.695388, -65.027011, 0), V(-12.646889, -64.909863, 0), V(-12.580505, -64.80038, 0), V(-12.497884, -64.701735, 0), V(-12.401649, -64.61759, 0), V(-12.294065, -64.547685, 0), V(-12.194327, -64.501561, 0), V(-12.104528, -64.474422, 0), V(-12.02692, -64.454722, 0), V(-11.938464, -64.440925, 0), V(-11.840203, -64.428235, 0), V(-11.731704, -64.417489, 0), V(-11.612901, -64.410356, 0), V(-11.48388, -64.406093, 0), V(-11.394456, -64.405884, 0), V(-11.348164, -64.405775, 0)], [4, 1, 1, 1, 1, 1, 1, 1, 1, 1, 1, 1, 1, 1, 1, 1, 4], [0, 1.100596872, 2.180981401, 3.259506136, 4.371595435, 5.481727359, 6.576991111, 7.667816242, 8.793363246, 9.406619729, 10.09427138, 10.864108636, 11.721733836, 12.6590937, 13.685439239, 14.801845161, 16], False, 3, [1, 1, 1, 1, 1, 1, 1, 1, 1, 1, 1, 1, 1, 1, 1, 1, 1, 1, 1], False), False)  # 71
sketch3.addGeometry(Part.BSplineCurve([V(-11.324844, -66.177085, 0), V(-11.37008, -66.177105, 0), V(-11.457761, -66.177143, 0), V(-11.58461, -66.171105, 0), V(-11.702721, -66.164236, 0), V(-11.811639, -66.153728, 0), V(-11.911417, -66.140193, 0), V(-12.001991, -66.123236, 0), V(-12.083561, -66.103564, 0), V(-12.178391, -66.072806, 0), V(-12.285503, -66.026176, 0), V(-12.399508, -65.953873, 0), V(-12.499203, -65.866432, 0), V(-12.582088, -65.76518, 0), V(-12.648662, -65.653378, 0), V(-12.694903, -65.533554, 0), V(-12.725375, -65.407598, 0), V(-12.728734, -65.321114, 0), V(-12.730443, -65.27712, 0)], [4, 1, 1, 1, 1, 1, 1, 1, 1, 1, 1, 1, 1, 1, 1, 1, 4], [0, 1.146399208, 2.222048177, 3.218135709, 4.144938032, 4.994811973, 5.769438708, 6.479732432, 7.119818093, 8.294689872, 9.430121864, 10.527913442, 11.641375077, 12.733452768, 13.811150417, 14.886538365, 16], False, 3, [1, 1, 1, 1, 1, 1, 1, 1, 1, 1, 1, 1, 1, 1, 1, 1, 1, 1, 1], False), False)  # 72
sketch3.addGeometry(Part.LineSegment(V(-11.324844, -66.177085, 0), V(-10.355977, -66.169664, 0)), False)  # 73
sketch3.addGeometry(Part.LineSegment(V(-10.355977, -66.169664, 0), V(-10.355977, -64.405775, 0)), False)  # 74
sketch3.addConstraint([
    Sketcher.Constraint("Block", 3),
    Sketcher.Constraint("Block", 4),
    Sketcher.Constraint("Block", 5),
    Sketcher.Constraint("Block", 6),
    Sketcher.Constraint("Block", 8),
    Sketcher.Constraint("Block", 9),
    Sketcher.Constraint("Block", 13),
    Sketcher.Constraint("Block", 14),
    Sketcher.Constraint("Block", 15),
    Sketcher.Constraint("Block", 20),
    Sketcher.Constraint("Block", 21),
    Sketcher.Constraint("Block", 22),
    Sketcher.Constraint("Block", 26),
    Sketcher.Constraint("Block", 27),
    Sketcher.Constraint("Block", 28),
    Sketcher.Constraint("Block", 29),
    Sketcher.Constraint("Block", 67),
    Sketcher.Constraint("Block", 68),
    Sketcher.Constraint("Block", 69),
    Sketcher.Constraint("Block", 71),
    Sketcher.Constraint("Block", 72),
    Sketcher.Constraint("Coincident", 0, 2, 1, 1),
    Sketcher.Constraint("Coincident", 1, 2, 2, 1),
    Sketcher.Constraint("Coincident", 2, 2, 3, 2),
    Sketcher.Constraint("Coincident", 6, 1, 0, 1),
    Sketcher.Constraint("Coincident", 7, 2, 8, 2),
    Sketcher.Constraint("Coincident", 9, 1, 10, 1),
    Sketcher.Constraint("Coincident", 10, 2, 11, 1),
    Sketcher.Constraint("Coincident", 11, 2, 7, 1),
    Sketcher.Constraint("Coincident", 12, 2, 13, 2),
    Sketcher.Constraint("Coincident", 15, 1, 16, 1),
    Sketcher.Constraint("Coincident", 16, 2, 17, 1),
    Sketcher.Constraint("Coincident", 17, 2, 12, 1),
    Sketcher.Constraint("Coincident", 18, 2, 19, 1),
    Sketcher.Constraint("Coincident", 19, 2, 20, 2),
    Sketcher.Constraint("Coincident", 22, 1, 23, 1),
    Sketcher.Constraint("Coincident", 23, 2, 24, 1),
    Sketcher.Constraint("Coincident", 24, 2, 25, 1),
    Sketcher.Constraint("Coincident", 25, 2, 26, 2),
    Sketcher.Constraint("Coincident", 29, 1, 30, 1),
    Sketcher.Constraint("Coincident", 30, 2, 18, 1),
    Sketcher.Constraint("Coincident", 59, 2, 60, 1),
    Sketcher.Constraint("Coincident", 60, 2, 61, 1),
    Sketcher.Constraint("Coincident", 61, 2, 62, 1),
    Sketcher.Constraint("Coincident", 62, 2, 63, 1),
    Sketcher.Constraint("Coincident", 63, 2, 64, 1),
    Sketcher.Constraint("Coincident", 64, 2, 65, 1),
    Sketcher.Constraint("Coincident", 65, 2, 66, 1),
    Sketcher.Constraint("Coincident", 66, 2, 67, 2),
    Sketcher.Constraint("Coincident", 69, 1, 59, 1),
    Sketcher.Constraint("Coincident", 70, 2, 71, 2),
    Sketcher.Constraint("Coincident", 72, 1, 73, 1),
    Sketcher.Constraint("Coincident", 73, 2, 74, 1),
    Sketcher.Constraint("Coincident", 74, 2, 70, 1),
    Sketcher.Constraint("Horizontal", 0),
    Sketcher.Constraint("Vertical", 1),
    Sketcher.Constraint("Horizontal", 2),
    Sketcher.Constraint("Horizontal", 7),
    Sketcher.Constraint("Horizontal", 10),
    Sketcher.Constraint("Vertical", 11),
    Sketcher.Constraint("Horizontal", 12),
    Sketcher.Constraint("Horizontal", 16),
    Sketcher.Constraint("Vertical", 17),
    Sketcher.Constraint("Horizontal", 18),
    Sketcher.Constraint("Vertical", 19),
    Sketcher.Constraint("Vertical", 23),
    Sketcher.Constraint("Horizontal", 24),
    Sketcher.Constraint("Vertical", 25),
    Sketcher.Constraint("Vertical", 30),
    Sketcher.Constraint("Vertical", 31),
    Sketcher.Constraint("Horizontal", 32),
    Sketcher.Constraint("Horizontal", 34),
    Sketcher.Constraint("Vertical", 35),
    Sketcher.Constraint("Horizontal", 36),
    Sketcher.Constraint("Horizontal", 38),
    Sketcher.Constraint("Vertical", 39),
    Sketcher.Constraint("Horizontal", 40),
    Sketcher.Constraint("Horizontal", 42),
    Sketcher.Constraint("Vertical", 43),
    Sketcher.Constraint("Horizontal", 44),
    Sketcher.Constraint("Horizontal", 46),
    Sketcher.Constraint("Horizontal", 47),
    Sketcher.Constraint("Vertical", 48),
    Sketcher.Constraint("Horizontal", 49),
    Sketcher.Constraint("Vertical", 50),
    Sketcher.Constraint("Horizontal", 51),
    Sketcher.Constraint("Vertical", 52),
    Sketcher.Constraint("Horizontal", 53),
    Sketcher.Constraint("Vertical", 54),
    Sketcher.Constraint("Horizontal", 55),
    Sketcher.Constraint("Vertical", 56),
    Sketcher.Constraint("Horizontal", 57),
    Sketcher.Constraint("Vertical", 58),
    Sketcher.Constraint("Horizontal", 59),
    Sketcher.Constraint("Vertical", 60),
    Sketcher.Constraint("Horizontal", 61),
    Sketcher.Constraint("Vertical", 62),
    Sketcher.Constraint("Horizontal", 63),
    Sketcher.Constraint("Horizontal", 65),
    Sketcher.Constraint("Horizontal", 70),
    Sketcher.Constraint("Vertical", 74),
    Sketcher.Constraint("DistanceX", 16, 1, 16, 2, Q("0.676299 mm")),
    Sketcher.Constraint("DistanceX", 34, 2, 34, 1, Q("2.917201 mm")),
    Sketcher.Constraint("DistanceX", 42, 2, 42, 1, Q("2.917201 mm")),
    Sketcher.Constraint("DistanceX", 0, 1, 0, 2, Q("1.032469 mm")),
    Sketcher.Constraint("DistanceX", 10, 1, 10, 2, Q("0.319069 mm")),
    Sketcher.Constraint("DistanceX", 36, 1, 36, 2, Q("2.15186 mm")),
    Sketcher.Constraint("DistanceX", 44, 1, 44, 2, Q("2.15186 mm")),
    Sketcher.Constraint("DistanceX", 51, 1, 51, 2, Q("2.51015 mm")),
    Sketcher.Constraint("DistanceX", 53, 2, 53, 1, Q("2.51015 mm")),
    Sketcher.Constraint("DistanceX", 55, 1, 55, 2, Q("2.51015 mm")),
    Sketcher.Constraint("DistanceX", 57, 2, 57, 1, Q("2.51015 mm")),
    Sketcher.Constraint("DistanceX", 59, 1, 59, 2, Q("1.058969 mm")),
    Sketcher.Constraint("DistanceX", 63, 2, 63, 1, Q("0.385851 mm")),
    Sketcher.Constraint("DistanceY", 19, 2, 19, 1, Q("3.195989 mm")),
    Sketcher.Constraint("DistanceY", 23, 1, 23, 2, Q("3.195989 mm")),
    Sketcher.Constraint("DistanceY", 74, 1, 74, 2, Q("1.763889 mm")),
    Sketcher.Constraint("DistanceY", 62, 2, -1, 1, Q("66.712399 mm")),
    Sketcher.Constraint("DistanceX", 32, 2, 33, 2, Q("2.219702 mm")),
    Sketcher.Constraint("DistanceX", 39, 2, 32, 2, Q("1.511602 mm")),
    Sketcher.Constraint("DistanceX", 42, 2, 40, 2, Q("0.697499 mm")),
    Sketcher.Constraint("DistanceX", 65, 2, 61, 2, Q("2.917201 mm")),
    Sketcher.Constraint("DistanceX", 32, 2, 32, 1, Q("2.016176 mm")),
    Sketcher.Constraint("DistanceX", 38, 1, 38, 2, Q("2.781517 mm")),
    Sketcher.Constraint("DistanceX", 40, 2, 40, 1, Q("2.016176 mm")),
    Sketcher.Constraint("DistanceX", 46, 1, 46, 2, Q("2.781517 mm")),
    Sketcher.Constraint("DistanceX", 47, 1, 47, 2, Q("2.985043 mm")),
    Sketcher.Constraint("DistanceX", 61, 2, 61, 1, Q("0.474893 mm")),
    Sketcher.Constraint("DistanceX", 65, 2, 65, 1, Q("0.587256 mm")),
    Sketcher.Constraint("DistanceX", 70, 2, 70, 1, Q("0.992188 mm")),
    Sketcher.Constraint("DistanceY", 31, 2, 31, 1, Q("0.542735 mm")),
    Sketcher.Constraint("DistanceY", 35, 1, 35, 2, Q("0.542735 mm")),
    Sketcher.Constraint("DistanceY", 39, 2, 39, 1, Q("0.542735 mm")),
    Sketcher.Constraint("DistanceY", 43, 1, 43, 2, Q("0.542735 mm")),
    Sketcher.Constraint("DistanceY", 48, 2, 48, 1, Q("5.291667 mm")),
    Sketcher.Constraint("DistanceY", 50, 1, 50, 2, Q("0.542735 mm")),
    Sketcher.Constraint("DistanceY", 52, 1, 52, 2, Q("2.035256 mm")),
    Sketcher.Constraint("DistanceY", 54, 1, 54, 2, Q("0.542735 mm")),
    Sketcher.Constraint("DistanceY", 56, 1, 56, 2, Q("1.628205 mm")),
    Sketcher.Constraint("DistanceY", 60, 2, 60, 1, Q("5.291667 mm")),
    Sketcher.Constraint("DistanceX", -1, 1, 31, 2, Q("1.380669 mm")),
    Sketcher.Constraint("DistanceY", 37, 2, -1, 1, Q("63.86304 mm")),
    Sketcher.Constraint("DistanceY", 45, 2, -1, 1, Q("63.86304 mm")),
    Sketcher.Constraint("DistanceY", 47, 2, -1, 1, Q("63.86304 mm")),
    Sketcher.Constraint("DistanceY", 33, 2, 25, 2, Q("2.121119 mm")),
    Sketcher.Constraint("DistanceY", 41, 2, 39, 2, Q("4.748932 mm")),
    Sketcher.Constraint("DistanceX", 47, 2, 45, 2, Q("1.017628 mm")),
    Sketcher.Constraint("Distance", 64, Q("3.121597 mm")),
])
pocket2 = body.newObject("PartDesign::Pocket", "Pocket001")
pocket2.Profile = sketch3
pocket2.Length = Q("0.025 in")
pocket2.Reversed = True

# Sketch on XZ plane
sketch4 = body.newObject("Sketcher::SketchObject", "Sketch003")
sketch4.AttachmentSupport = (doc.getObject("XZ_Plane"), [""])
sketch4.MapMode = "FlatFace"
sketch4.AttachmentOffset = App.Placement(V(0, 0, -0.05 * 25.4), App.Rotation())
sketch4.addGeometry(Part.Circle(V(17.7, -27.9, 0), V(0, 0, 1), 1.8), False)
sketch4.addConstraint([
    Sketcher.Constraint("Diameter", 0, Q("0.14 in")),
    Sketcher.Constraint("DistanceX", -1, 1, 0, 3, Q("17.679877 mm")),
    Sketcher.Constraint("DistanceY", 0, 3, -1, 1, Q("27.879707 mm")),
])
pocket3 = body.newObject("PartDesign::Pocket", "Pocket002")
pocket3.Profile = sketch4
pocket3.Type = "ThroughAll"
pocket3.Reversed = True

# Sketch on XZ plane
sketch5 = body.newObject("Sketcher::SketchObject", "Sketch004")
sketch5.AttachmentSupport = (doc.getObject("XZ_Plane"), [""])
sketch5.MapMode = "FlatFace"
sketch5.AttachmentOffset = App.Placement(V(0, 0, -0.05 * 25.4), App.Rotation())
sketch5.addGeometry([
    Part.Circle(V(28.4, 7.7, 0), V(0, 0, 1), 1.2),
    Part.Circle(V(-31.2, 7.7, 0), V(0, 0, 1), 1.2),
    Part.Circle(V(-31.2, -85, 0), V(0, 0, 1), 1.2),
    Part.Circle(V(28.4, -85, 0), V(0, 0, 1), 1.2),
], False)
sketch5.addConstraint([
    Sketcher.Constraint("Equal", 0, 1),
    Sketcher.Constraint("Equal", 1, 2),
    Sketcher.Constraint("Equal", 2, 3),
    Sketcher.Constraint("Horizontal", 0, 3, 1, 3),
    Sketcher.Constraint("Horizontal", 2, 3, 3, 3),
    Sketcher.Constraint("Vertical", 1, 3, 2, 3),
    Sketcher.Constraint("Vertical", 0, 3, 3, 3),
    Sketcher.Constraint("Diameter", 0, Q("0.09375 in")),
    Sketcher.Constraint("DistanceX", 1, 3, 0, 3, Q("2.35 in")),
    Sketcher.Constraint("DistanceY", 2, 3, 1, 3, Q("3.65 in")),
    Sketcher.Constraint("DistanceX", -1, 1, 0, 3, Q("28.444152 mm")),
    Sketcher.Constraint("DistanceY", -1, 1, 0, 3, Q("7.680293 mm")),
])
pocket4 = body.newObject("PartDesign::Pocket", "Pocket003")
pocket4.Profile = sketch5
pocket4.Type = "ThroughAll"
pocket4.Reversed = True

doc.recompute()
